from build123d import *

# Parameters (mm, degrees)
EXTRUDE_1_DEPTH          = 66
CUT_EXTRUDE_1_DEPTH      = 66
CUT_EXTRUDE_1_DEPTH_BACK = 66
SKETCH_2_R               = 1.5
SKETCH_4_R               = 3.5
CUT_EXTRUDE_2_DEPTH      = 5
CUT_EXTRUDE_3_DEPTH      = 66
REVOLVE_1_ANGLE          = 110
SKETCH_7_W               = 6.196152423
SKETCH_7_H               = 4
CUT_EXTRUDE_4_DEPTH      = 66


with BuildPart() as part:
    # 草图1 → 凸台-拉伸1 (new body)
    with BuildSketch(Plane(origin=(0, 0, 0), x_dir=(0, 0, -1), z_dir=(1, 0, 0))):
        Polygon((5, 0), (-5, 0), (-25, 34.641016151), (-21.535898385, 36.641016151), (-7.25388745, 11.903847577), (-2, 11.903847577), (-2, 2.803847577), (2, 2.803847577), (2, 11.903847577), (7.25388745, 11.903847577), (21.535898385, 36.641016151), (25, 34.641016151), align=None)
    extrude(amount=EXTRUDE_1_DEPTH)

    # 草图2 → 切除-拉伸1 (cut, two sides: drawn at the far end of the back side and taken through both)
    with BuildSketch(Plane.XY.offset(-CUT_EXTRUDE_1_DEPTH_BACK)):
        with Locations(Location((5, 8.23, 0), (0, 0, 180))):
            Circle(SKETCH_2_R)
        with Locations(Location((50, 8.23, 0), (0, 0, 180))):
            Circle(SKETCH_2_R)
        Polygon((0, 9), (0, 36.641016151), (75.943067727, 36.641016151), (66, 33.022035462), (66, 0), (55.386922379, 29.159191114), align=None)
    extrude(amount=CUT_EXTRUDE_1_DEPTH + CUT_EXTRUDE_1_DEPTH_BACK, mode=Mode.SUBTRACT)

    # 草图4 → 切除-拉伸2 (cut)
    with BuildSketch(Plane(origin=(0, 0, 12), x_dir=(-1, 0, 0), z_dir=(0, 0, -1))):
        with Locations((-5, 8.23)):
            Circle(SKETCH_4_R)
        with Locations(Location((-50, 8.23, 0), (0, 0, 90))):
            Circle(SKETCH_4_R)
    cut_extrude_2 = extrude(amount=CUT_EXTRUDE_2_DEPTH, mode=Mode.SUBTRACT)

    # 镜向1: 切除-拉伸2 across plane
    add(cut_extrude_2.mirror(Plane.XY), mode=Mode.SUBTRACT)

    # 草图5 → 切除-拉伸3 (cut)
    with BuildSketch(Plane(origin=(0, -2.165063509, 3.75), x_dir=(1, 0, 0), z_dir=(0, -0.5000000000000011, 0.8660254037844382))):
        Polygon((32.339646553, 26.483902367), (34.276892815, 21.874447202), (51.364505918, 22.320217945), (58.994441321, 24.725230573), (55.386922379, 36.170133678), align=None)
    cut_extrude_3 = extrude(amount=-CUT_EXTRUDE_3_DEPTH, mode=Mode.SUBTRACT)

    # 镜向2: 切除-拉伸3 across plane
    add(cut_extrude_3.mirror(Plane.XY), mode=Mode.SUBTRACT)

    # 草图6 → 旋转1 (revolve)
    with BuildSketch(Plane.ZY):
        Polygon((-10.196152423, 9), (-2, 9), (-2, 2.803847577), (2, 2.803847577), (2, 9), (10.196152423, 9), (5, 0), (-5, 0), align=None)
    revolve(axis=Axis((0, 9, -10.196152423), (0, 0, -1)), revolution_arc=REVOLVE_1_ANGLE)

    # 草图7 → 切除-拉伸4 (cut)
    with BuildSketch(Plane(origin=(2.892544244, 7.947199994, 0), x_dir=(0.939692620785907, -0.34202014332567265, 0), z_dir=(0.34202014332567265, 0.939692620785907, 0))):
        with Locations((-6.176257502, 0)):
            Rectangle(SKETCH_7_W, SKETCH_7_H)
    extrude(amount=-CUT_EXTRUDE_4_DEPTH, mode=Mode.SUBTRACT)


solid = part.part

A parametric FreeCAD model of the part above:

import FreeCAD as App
import Part
import Sketcher
Q = App.Units.Quantity

doc = App.newDocument("Part")
body = doc.addObject("PartDesign::Body", "Body")

sketch1 = body.newObject("Sketcher::SketchObject", "Sketch")
sketch1.AttachmentSupport = (doc.getObject("YZ_Plane"), [""])
sketch1.MapMode = "FlatFace"
sketch1.addGeometry([
    Part.LineSegment(App.Vector(0, 5, 0), App.Vector(0, -5, 0)),
    Part.LineSegment(App.Vector(0, -5, 0), App.Vector(34.6, -25, 0)),
    Part.LineSegment(App.Vector(34.6, -25, 0), App.Vector(36.6, -21.5, 0)),
    Part.LineSegment(App.Vector(36.6, -21.5, 0), App.Vector(11.9, -7.3, 0)),
    Part.LineSegment(App.Vector(11.9, -7.3, 0), App.Vector(11.9, -2, 0)),
    Part.LineSegment(App.Vector(11.9, -2, 0), App.Vector(2.8, -2, 0)),
    Part.LineSegment(App.Vector(2.8, -2, 0), App.Vector(2.8, 2, 0)),
    Part.LineSegment(App.Vector(2.8, 2, 0), App.Vector(11.9, 2, 0)),
    Part.LineSegment(App.Vector(11.9, 2, 0), App.Vector(11.9, 7.3, 0)),
    Part.LineSegment(App.Vector(11.9, 7.3, 0), App.Vector(36.6, 21.5, 0)),
    Part.LineSegment(App.Vector(36.6, 21.5, 0), App.Vector(34.6, 25, 0)),
    Part.LineSegment(App.Vector(34.6, 25, 0), App.Vector(0, 5, 0)),
], False)
sketch1.addConstraint([
    Sketcher.Constraint("Coincident", 0, 2, 1, 1),
    Sketcher.Constraint("Coincident", 1, 2, 2, 1),
    Sketcher.Constraint("Coincident", 2, 2, 3, 1),
    Sketcher.Constraint("Coincident", 3, 2, 4, 1),
    Sketcher.Constraint("Coincident", 4, 2, 5, 1),
    Sketcher.Constraint("Coincident", 5, 2, 6, 1),
    Sketcher.Constraint("Coincident", 6, 2, 7, 1),
    Sketcher.Constraint("Coincident", 7, 2, 8, 1),
    Sketcher.Constraint("Coincident", 8, 2, 9, 1),
    Sketcher.Constraint("Coincident", 9, 2, 10, 1),
    Sketcher.Constraint("Coincident", 10, 2, 11, 1),
    Sketcher.Constraint("Coincident", 11, 2, 0, 1),
    Sketcher.Constraint("Vertical", 0),
    Sketcher.Constraint("Vertical", 4),
    Sketcher.Constraint("Horizontal", 5),
    Sketcher.Constraint("Vertical", 6),
    Sketcher.Constraint("Horizontal", 7),
    Sketcher.Constraint("Vertical", 8),
    Sketcher.Constraint("Symmetric", 0, 2, 11, 2, -1, 1),
    Sketcher.Constraint("Symmetric", 4, 2, 7, 2, -1),
    Sketcher.Constraint("Symmetric", 2, 2, 9, 2, -1),
    Sketcher.Constraint("Symmetric", 1, 2, 10, 2, -1),
    Sketcher.Constraint("Perpendicular", 1, 2),
    Sketcher.Constraint("Perpendicular", 2, 3),
    Sketcher.Constraint("Perpendicular", 9, 10),
    Sketcher.Constraint("DistanceY", 0, 2, 0, 1, 10.0),
    Sketcher.Constraint("DistanceY", 6, 1, 6, 2, 4.0),
    Sketcher.Constraint("Angle", 1, Q("-30 deg")),
    Sketcher.Constraint("Distance", 1, 40.0),
    Sketcher.Constraint("Distance", 2, 4.0),
    Sketcher.Constraint("DistanceX", 5, 2, 5, 1, 9.1),
    Sketcher.Constraint("Distance", 3, 28.564022),
])
pad1 = body.newObject("PartDesign::Pad", "Pad")
pad1.Profile = sketch1
pad1.Length = 66

sketch2 = body.newObject("Sketcher::SketchObject", "Sketch001")
sketch2.AttachmentSupport = (doc.getObject("XY_Plane"), [""])
sketch2.MapMode = "FlatFace"
sketch2.addGeometry([
    Part.Circle(App.Vector(5, 8.2, 0), App.Vector(0, 0, 1), 1.5),
    Part.Circle(App.Vector(50, 8.2, 0), App.Vector(0, 0, 1), 1.5),
    Part.LineSegment(App.Vector(0, 36.6, 0), App.Vector(0, 9, 0)),
    Part.LineSegment(App.Vector(0, 9, 0), App.Vector(55.4, 29.2, 0)),
    Part.LineSegment(App.Vector(55.4, 29.2, 0), App.Vector(66, 0, 0)),
    Part.LineSegment(App.Vector(66, 0, 0), App.Vector(66, 33, 0)),
    Part.LineSegment(App.Vector(66, 33, 0), App.Vector(75.9, 36.6, 0)),
    Part.LineSegment(App.Vector(75.9, 36.6, 0), App.Vector(0, 36.6, 0)),
], False)
sketch2.addConstraint([
    Sketcher.Constraint("Coincident", 2, 2, 3, 1),
    Sketcher.Constraint("Coincident", 3, 2, 4, 1),
    Sketcher.Constraint("Coincident", 4, 2, 5, 1),
    Sketcher.Constraint("Coincident", 5, 2, 6, 1),
    Sketcher.Constraint("Coincident", 6, 2, 7, 1),
    Sketcher.Constraint("Coincident", 7, 2, 2, 1),
    Sketcher.Constraint("Vertical", 2),
    Sketcher.Constraint("Vertical", 5),
    Sketcher.Constraint("Horizontal", 7),
    Sketcher.Constraint("Equal", 0, 1),
    Sketcher.Constraint("PointOnObject", 2, 2, -2),
    Sketcher.Constraint("PointOnObject", 4, 2, -1),
    Sketcher.Constraint("Perpendicular", 3, 4),
    Sketcher.Constraint("Perpendicular", 4, 6),
    Sketcher.Constraint("Horizontal", 0, 3, 1, 3),
    Sketcher.Constraint("Diameter", 0, 3.0),
    Sketcher.Constraint("Angle", 3, Q("20 deg")),
    Sketcher.Constraint("DistanceX", -1, 1, 0, 3, 5.0),
    Sketcher.Constraint("DistanceX", -1, 1, 1, 3, 50.0),
    Sketcher.Constraint("DistanceY", -1, 1, 2, 2, 9.0),
    Sketcher.Constraint("DistanceX", -1, 1, 4, 2, 66.0),
    Sketcher.Constraint("DistanceY", -1, 1, 0, 3, 8.23),
    Sketcher.Constraint("Distance", 6, 10.581192),
    Sketcher.Constraint("DistanceY", 2, 2, 2, 1, 27.641016),
])
pocket1 = body.newObject("PartDesign::Pocket", "Pocket")
pocket1.Profile = sketch2
pocket1.Type = "ThroughAll"
pocket1.Midplane = True

sketch3 = body.newObject("Sketcher::SketchObject", "Sketch002")
sketch3.AttachmentSupport = (doc.getObject("XY_Plane"), [""])
sketch3.MapMode = "FlatFace"
sketch3.AttachmentOffset = App.Placement(App.Vector(0, 0, 12), App.Rotation())
sketch3.addGeometry([
    Part.Circle(App.Vector(5, 8.2, 0), App.Vector(0, 0, 1), 3.5),
    Part.Circle(App.Vector(50, 8.2, 0), App.Vector(0, 0, 1), 3.5),
], False)
sketch3.addConstraint([
    Sketcher.Constraint("Equal", 0, 1),
    Sketcher.Constraint("Horizontal", 0, 3, 1, 3),
    Sketcher.Constraint("Diameter", 0, 7.0),
    Sketcher.Constraint("DistanceX", -1, 1, 0, 3, 5.0),
    Sketcher.Constraint("DistanceX", -1, 1, 1, 3, 50.0),
    Sketcher.Constraint("DistanceY", -1, 1, 0, 3, 8.23),
])
pocket2 = body.newObject("PartDesign::Pocket", "Pocket001")
pocket2.Profile = sketch3
pocket2.Length = 5
doc.recompute()

mirrored = body.newObject("PartDesign::Mirrored", "Mirrored")
mirrored.Originals = [pocket2]
mirrored.MirrorPlane = (doc.getObject("XY_Plane"), [""])
body.Tip = mirrored

sketch4 = body.newObject("Sketcher::SketchObject", "Sketch003")
sketch4.Placement = App.Placement(App.Vector(0, -2.165064, 3.75), App.Rotation(App.Vector(1, 0, 0), App.Vector(0, 0.866025404, 0.5), App.Vector(0, -0.5, 0.866025404), "ZXY"))
sketch4.addGeometry([
    Part.LineSegment(App.Vector(32, 26, 0), App.Vector(34, 22, 0)),
    Part.LineSegment(App.Vector(34, 22, 0), App.Vector(51, 22, 0)),
    Part.LineSegment(App.Vector(51, 22, 0), App.Vector(59, 25, 0)),
    Part.LineSegment(App.Vector(59, 25, 0), App.Vector(55, 36, 0)),
    Part.LineSegment(App.Vector(55, 36, 0), App.Vector(32, 26, 0)),
], False)
sketch4.addConstraint([
    Sketcher.Constraint("Coincident", 0, 2, 1, 1),
    Sketcher.Constraint("Coincident", 1, 2, 2, 1),
    Sketcher.Constraint("Coincident", 2, 2, 3, 1),
    Sketcher.Constraint("Coincident", 3, 2, 4, 1),
    Sketcher.Constraint("Coincident", 4, 2, 0, 1),
    Sketcher.Constraint("Perpendicular", 2, 3),
    Sketcher.Constraint("Perpendicular", 0, 4),
    Sketcher.Constraint("Distance", 0, 5.0),
    Sketcher.Constraint("Distance", 2, 8.0),
    Sketcher.Constraint("Distance", 3, 12.0),
    Sketcher.Constraint("Distance", 4, 25.0),
    Sketcher.Constraint("DistanceX", -1, 1, 2, 2, 58.994441),
    Sketcher.Constraint("DistanceY", -1, 1, 2, 2, 24.725231),
    Sketcher.Constraint("DistanceY", 0, 2, 1, 2, 0.445771),
    Sketcher.Constraint("DistanceX", 0, 2, 2, 2, 24.717549),
])
pocket3 = body.newObject("PartDesign::Pocket", "Pocket002")
pocket3.Profile = sketch4
pocket3.Length = 66
doc.recompute()

mirrored2 = body.newObject("PartDesign::Mirrored", "Mirrored001")
mirrored2.Originals = [pocket3]
mirrored2.MirrorPlane = (doc.getObject("XY_Plane"), [""])
body.Tip = mirrored2

sketch5 = body.newObject("Sketcher::SketchObject", "Sketch004")
sketch5.AttachmentSupport = (doc.getObject("YZ_Plane"), [""])
sketch5.MapMode = "FlatFace"
sketch5.addGeometry([
    Part.LineSegment(App.Vector(9, -2, 0), App.Vector(9, -10.2, 0)),
    Part.LineSegment(App.Vector(9, -10.2, 0), App.Vector(0, -5, 0)),
    Part.LineSegment(App.Vector(0, -5, 0), App.Vector(0, 5, 0)),
    Part.LineSegment(App.Vector(0, 5, 0), App.Vector(9, 10.2, 0)),
    Part.LineSegment(App.Vector(9, 10.2, 0), App.Vector(9, 2, 0)),
    Part.LineSegment(App.Vector(9, 2, 0), App.Vector(2.8, 2, 0)),
    Part.LineSegment(App.Vector(2.8, 2, 0), App.Vector(2.8, -2, 0)),
    Part.LineSegment(App.Vector(2.8, -2, 0), App.Vector(9, -2, 0)),
], False)
sketch5.addGeometry(Part.LineSegment(App.Vector(9, 10.2, 0), App.Vector(9, -10.2, 0)), True)
sketch5.addConstraint([
    Sketcher.Constraint("Coincident", 0, 2, 1, 1),
    Sketcher.Constraint("Coincident", 1, 2, 2, 1),
    Sketcher.Constraint("Coincident", 2, 2, 3, 1),
    Sketcher.Constraint("Coincident", 3, 2, 4, 1),
    Sketcher.Constraint("Coincident", 4, 2, 5, 1),
    Sketcher.Constraint("Coincident", 5, 2, 6, 1),
    Sketcher.Constraint("Coincident", 6, 2, 7, 1),
    Sketcher.Constraint("Coincident", 7, 2, 0, 1),
    Sketcher.Constraint("Vertical", 0),
    Sketcher.Constraint("Vertical", 2),
    Sketcher.Constraint("Vertical", 4),
    Sketcher.Constraint("Horizontal", 5),
    Sketcher.Constraint("Vertical", 6),
    Sketcher.Constraint("Horizontal", 7),
    Sketcher.Constraint("Vertical", 8),
    Sketcher.Constraint("Coincident", 8, 1, 3, 2),
    Sketcher.Constraint("Coincident", 8, 2, 0, 2),
    Sketcher.Constraint("Symmetric", 1, 2, 2, 2, -1, 1),
    Sketcher.Constraint("Equal", 0, 4),
    Sketcher.Constraint("Equal", 1, 3),
    Sketcher.Constraint("DistanceY", 2, 1, 2, 2, 10.0),
    Sketcher.Constraint("DistanceY", 6, 2, 6, 1, 4.0),
    Sketcher.Constraint("Angle", 1, Q("150 deg")),
    Sketcher.Constraint("DistanceX", -1, 1, 0, 2, 9.0),
    Sketcher.Constraint("DistanceX", 5, 2, 5, 1, 6.196152),
])
revolution = body.newObject("PartDesign::Revolution", "Revolution")
revolution.Profile = sketch5
revolution.ReferenceAxis = (sketch5, ["Axis0"])
revolution.Angle = 110

sketch6 = body.newObject("Sketcher::SketchObject", "Sketch005")
sketch6.Placement = App.Placement(App.Vector(2.892544, 7.9472, 0), App.Rotation(App.Vector(0.939692621, -0.342020143, 0), App.Vector(0, 0, -1), App.Vector(0.342020143, 0.939692621, 0), "ZXY"))
sketch6.addGeometry([
    Part.LineSegment(App.Vector(-9.3, 2, 0), App.Vector(-9.3, -2, 0)),
    Part.LineSegment(App.Vector(-9.3, -2, 0), App.Vector(-3.1, -2, 0)),
    Part.LineSegment(App.Vector(-3.1, -2, 0), App.Vector(-3.1, 2, 0)),
    Part.LineSegment(App.Vector(-3.1, 2, 0), App.Vector(-9.3, 2, 0)),
], False)
sketch6.addConstraint([
    Sketcher.Constraint("Coincident", 0, 2, 1, 1),
    Sketcher.Constraint("Coincident", 1, 2, 2, 1),
    Sketcher.Constraint("Coincident", 2, 2, 3, 1),
    Sketcher.Constraint("Coincident", 3, 2, 0, 1),
    Sketcher.Constraint("Vertical", 0),
    Sketcher.Constraint("Horizontal", 1),
    Sketcher.Constraint("Vertical", 2),
    Sketcher.Constraint("Horizontal", 3),
    Sketcher.Constraint("DistanceY", 0, 2, 0, 1, 4.0),
    Sketcher.Constraint("DistanceY", 0, 2, -1, 1, 2.0),
    Sketcher.Constraint("DistanceX", 1, 1, 1, 2, 6.196152),
    Sketcher.Constraint("DistanceX", 1, 2, -1, 1, 3.078181),
])
pocket4 = body.newObject("PartDesign::Pocket", "Pocket003")
pocket4.Profile = sketch6
pocket4.Length = 66

doc.recompute()
